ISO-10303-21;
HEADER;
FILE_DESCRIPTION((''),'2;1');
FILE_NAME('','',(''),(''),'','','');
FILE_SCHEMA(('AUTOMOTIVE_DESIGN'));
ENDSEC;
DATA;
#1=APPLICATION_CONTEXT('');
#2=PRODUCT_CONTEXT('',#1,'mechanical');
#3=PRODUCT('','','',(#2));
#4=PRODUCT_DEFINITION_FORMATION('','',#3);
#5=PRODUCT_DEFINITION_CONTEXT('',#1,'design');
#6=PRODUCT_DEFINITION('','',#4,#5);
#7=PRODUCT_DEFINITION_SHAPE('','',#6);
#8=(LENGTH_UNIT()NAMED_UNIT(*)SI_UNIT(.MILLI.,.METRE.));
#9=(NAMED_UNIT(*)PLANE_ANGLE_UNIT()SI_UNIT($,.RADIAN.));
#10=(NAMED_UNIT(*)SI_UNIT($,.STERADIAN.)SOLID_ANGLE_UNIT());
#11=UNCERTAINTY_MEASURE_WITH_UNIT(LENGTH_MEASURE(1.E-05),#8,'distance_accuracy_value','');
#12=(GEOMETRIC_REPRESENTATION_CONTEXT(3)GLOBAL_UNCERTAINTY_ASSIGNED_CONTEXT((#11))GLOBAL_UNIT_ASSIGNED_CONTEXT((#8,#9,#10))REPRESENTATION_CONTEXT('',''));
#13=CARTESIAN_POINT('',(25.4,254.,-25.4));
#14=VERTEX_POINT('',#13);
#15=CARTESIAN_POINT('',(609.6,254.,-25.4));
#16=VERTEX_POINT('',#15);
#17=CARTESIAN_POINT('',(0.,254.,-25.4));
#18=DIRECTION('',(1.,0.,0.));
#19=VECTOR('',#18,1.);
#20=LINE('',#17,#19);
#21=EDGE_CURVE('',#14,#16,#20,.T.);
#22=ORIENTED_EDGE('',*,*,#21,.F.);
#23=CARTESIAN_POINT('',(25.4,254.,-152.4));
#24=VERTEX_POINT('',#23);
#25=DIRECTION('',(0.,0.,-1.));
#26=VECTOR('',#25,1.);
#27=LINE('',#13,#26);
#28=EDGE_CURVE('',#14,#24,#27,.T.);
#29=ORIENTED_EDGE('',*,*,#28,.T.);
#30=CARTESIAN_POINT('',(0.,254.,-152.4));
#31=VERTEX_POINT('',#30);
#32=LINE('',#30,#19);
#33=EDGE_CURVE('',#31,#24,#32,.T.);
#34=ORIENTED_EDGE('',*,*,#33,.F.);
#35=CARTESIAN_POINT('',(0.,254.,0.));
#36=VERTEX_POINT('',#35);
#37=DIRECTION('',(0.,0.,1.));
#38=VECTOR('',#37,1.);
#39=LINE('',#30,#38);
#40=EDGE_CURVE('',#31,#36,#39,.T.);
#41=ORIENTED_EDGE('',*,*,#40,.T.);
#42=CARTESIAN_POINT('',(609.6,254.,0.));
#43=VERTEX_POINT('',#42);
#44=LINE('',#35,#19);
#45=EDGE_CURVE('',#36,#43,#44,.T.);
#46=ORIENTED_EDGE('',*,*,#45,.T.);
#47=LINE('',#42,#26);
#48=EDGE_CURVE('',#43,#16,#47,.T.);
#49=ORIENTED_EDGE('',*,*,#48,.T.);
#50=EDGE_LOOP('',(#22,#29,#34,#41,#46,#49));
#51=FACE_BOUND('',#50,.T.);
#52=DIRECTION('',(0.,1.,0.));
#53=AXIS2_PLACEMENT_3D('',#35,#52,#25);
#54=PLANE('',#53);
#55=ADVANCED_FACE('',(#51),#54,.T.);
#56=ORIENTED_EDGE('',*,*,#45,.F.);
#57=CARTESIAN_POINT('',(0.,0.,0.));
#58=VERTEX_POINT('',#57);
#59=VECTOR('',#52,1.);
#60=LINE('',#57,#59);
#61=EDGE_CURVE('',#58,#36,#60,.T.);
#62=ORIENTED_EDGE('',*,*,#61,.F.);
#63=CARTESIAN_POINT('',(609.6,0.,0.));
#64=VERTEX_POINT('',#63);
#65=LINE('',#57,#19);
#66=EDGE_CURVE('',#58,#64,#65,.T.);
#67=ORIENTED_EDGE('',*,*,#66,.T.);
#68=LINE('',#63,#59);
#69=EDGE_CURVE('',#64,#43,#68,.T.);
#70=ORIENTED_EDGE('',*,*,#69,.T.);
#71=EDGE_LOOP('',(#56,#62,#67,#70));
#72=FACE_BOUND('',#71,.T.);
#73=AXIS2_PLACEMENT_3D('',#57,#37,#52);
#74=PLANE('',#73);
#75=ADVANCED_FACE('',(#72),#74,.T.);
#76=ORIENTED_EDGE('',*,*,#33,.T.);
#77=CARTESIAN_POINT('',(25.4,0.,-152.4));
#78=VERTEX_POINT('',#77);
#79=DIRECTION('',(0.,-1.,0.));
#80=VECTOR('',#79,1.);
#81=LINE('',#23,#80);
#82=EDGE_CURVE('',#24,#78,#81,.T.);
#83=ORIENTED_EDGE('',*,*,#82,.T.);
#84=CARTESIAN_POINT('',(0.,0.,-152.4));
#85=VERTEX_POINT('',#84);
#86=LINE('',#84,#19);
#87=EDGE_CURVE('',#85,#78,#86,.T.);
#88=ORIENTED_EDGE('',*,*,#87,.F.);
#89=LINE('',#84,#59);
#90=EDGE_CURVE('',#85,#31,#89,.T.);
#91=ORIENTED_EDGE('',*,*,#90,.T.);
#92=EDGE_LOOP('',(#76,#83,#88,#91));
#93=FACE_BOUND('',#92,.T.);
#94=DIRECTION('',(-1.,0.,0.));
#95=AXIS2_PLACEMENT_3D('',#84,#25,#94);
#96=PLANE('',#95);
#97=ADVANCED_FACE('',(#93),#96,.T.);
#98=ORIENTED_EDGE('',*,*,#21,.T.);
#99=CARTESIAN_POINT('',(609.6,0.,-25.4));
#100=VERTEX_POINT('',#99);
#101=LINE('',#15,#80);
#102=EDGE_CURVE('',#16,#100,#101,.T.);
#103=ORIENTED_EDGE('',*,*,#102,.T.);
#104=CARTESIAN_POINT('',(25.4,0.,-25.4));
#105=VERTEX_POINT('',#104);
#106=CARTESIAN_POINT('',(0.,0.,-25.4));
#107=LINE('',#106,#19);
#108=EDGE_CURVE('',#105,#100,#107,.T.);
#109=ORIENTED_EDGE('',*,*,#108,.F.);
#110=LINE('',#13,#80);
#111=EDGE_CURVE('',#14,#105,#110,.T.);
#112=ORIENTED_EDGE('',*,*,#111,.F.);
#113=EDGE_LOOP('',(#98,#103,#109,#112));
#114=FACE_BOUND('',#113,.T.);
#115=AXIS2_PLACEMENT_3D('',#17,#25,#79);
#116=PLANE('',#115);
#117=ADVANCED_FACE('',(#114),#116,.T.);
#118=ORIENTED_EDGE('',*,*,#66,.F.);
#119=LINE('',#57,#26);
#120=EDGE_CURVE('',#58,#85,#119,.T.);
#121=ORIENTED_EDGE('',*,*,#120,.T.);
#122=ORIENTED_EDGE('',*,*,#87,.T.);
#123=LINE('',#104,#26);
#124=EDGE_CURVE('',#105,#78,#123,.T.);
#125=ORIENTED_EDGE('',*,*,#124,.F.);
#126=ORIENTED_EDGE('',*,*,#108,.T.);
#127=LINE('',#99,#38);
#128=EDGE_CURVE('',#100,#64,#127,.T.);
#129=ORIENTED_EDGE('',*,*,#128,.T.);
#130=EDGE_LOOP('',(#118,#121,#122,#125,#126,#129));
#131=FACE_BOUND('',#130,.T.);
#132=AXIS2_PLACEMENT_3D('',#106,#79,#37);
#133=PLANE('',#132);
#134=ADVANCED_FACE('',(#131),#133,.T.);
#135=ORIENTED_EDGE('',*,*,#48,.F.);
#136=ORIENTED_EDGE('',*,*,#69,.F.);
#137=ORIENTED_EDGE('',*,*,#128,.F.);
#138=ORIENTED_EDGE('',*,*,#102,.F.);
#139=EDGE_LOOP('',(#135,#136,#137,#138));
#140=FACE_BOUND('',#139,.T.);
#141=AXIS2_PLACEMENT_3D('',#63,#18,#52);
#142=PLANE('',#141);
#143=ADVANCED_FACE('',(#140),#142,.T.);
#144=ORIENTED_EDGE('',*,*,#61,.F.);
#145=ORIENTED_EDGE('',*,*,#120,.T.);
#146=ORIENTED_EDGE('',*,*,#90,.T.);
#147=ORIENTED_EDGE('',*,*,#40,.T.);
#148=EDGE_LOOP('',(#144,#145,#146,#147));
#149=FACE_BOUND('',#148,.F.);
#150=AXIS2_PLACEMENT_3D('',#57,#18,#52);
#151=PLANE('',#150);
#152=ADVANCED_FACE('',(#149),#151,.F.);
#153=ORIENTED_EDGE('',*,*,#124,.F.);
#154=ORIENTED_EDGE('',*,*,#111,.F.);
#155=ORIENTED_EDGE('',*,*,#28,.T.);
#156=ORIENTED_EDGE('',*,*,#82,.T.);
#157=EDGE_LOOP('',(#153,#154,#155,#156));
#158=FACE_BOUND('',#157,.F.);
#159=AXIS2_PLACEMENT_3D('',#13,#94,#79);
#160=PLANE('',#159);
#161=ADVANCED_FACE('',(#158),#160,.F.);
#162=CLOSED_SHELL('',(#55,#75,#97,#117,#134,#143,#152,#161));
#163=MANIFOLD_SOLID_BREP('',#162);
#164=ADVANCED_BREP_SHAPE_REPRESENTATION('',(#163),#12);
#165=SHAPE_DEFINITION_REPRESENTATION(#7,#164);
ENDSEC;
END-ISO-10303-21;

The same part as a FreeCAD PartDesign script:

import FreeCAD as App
import Part
import Sketcher
Q = App.Units.Quantity


def add_polygon(sketch, points):
    """Adds a closed chain of lines whose ends are joined by coincident constraints."""
    first, n = sketch.GeometryCount, len(points)
    for a, b in zip(points, points[1:] + points[:1]):
        sketch.addGeometry(Part.LineSegment(App.Vector(*a, 0), App.Vector(*b, 0)), False)
    for i in range(n):
        sketch.addConstraint(Sketcher.Constraint("Coincident", first + i, 2, first + (i + 1) % n, 1))

doc = App.newDocument("Part")
body = doc.addObject("PartDesign::Body", "Body")

# Sketch on YZ plane
sketch1 = body.newObject("Sketcher::SketchObject", "Sketch")
sketch1.AttachmentSupport = (doc.getObject("YZ_Plane"), [""])
sketch1.MapMode = "FlatFace"
add_polygon(sketch1, [(254, 0), (0, 0), (0, -25.4), (254, -25.4)])  # lines 0-3
sketch1.addConstraint(Sketcher.Constraint("Horizontal", 0))
sketch1.addConstraint(Sketcher.Constraint("Vertical", 1))
sketch1.addConstraint(Sketcher.Constraint("Horizontal", 2))
sketch1.addConstraint(Sketcher.Constraint("Vertical", 3))
sketch1.addConstraint(Sketcher.Constraint("Coincident", 0, 2, -1, 1))
sketch1.addConstraint(Sketcher.Constraint("DistanceX", 0, 2, 0, 1, Q("10 in")))
sketch1.addConstraint(Sketcher.Constraint("DistanceY", 1, 2, 1, 1, Q("1 in")))
pad1 = body.newObject("PartDesign::Pad", "Pad")
pad1.Profile = sketch1
pad1.Length = Q("24 in")

# Sketch on XY plane
sketch2 = body.newObject("Sketcher::SketchObject", "Sketch001")
sketch2.AttachmentSupport = (doc.getObject("XY_Plane"), [""])
sketch2.MapMode = "FlatFace"
sketch2.AttachmentOffset = App.Placement(App.Vector(0, 0, -1 * 25.4), App.Rotation())
add_polygon(sketch2, [(25.4, 0), (0, 0), (0, 254), (25.4, 254)])  # lines 0-3
sketch2.addConstraint(Sketcher.Constraint("Horizontal", 0))
sketch2.addConstraint(Sketcher.Constraint("Vertical", 1))
sketch2.addConstraint(Sketcher.Constraint("Horizontal", 2))
sketch2.addConstraint(Sketcher.Constraint("Vertical", 3))
sketch2.addConstraint(Sketcher.Constraint("Coincident", 0, 2, -1, 1))
sketch2.addConstraint(Sketcher.Constraint("DistanceX", 0, 2, 0, 1, Q("1 in")))
sketch2.addConstraint(Sketcher.Constraint("DistanceY", 1, 1, 1, 2, Q("10 in")))
pad2 = body.newObject("PartDesign::Pad", "Pad001")
pad2.Profile = sketch2
pad2.Length = Q("5 in")
pad2.Reversed = True

doc.recompute()
